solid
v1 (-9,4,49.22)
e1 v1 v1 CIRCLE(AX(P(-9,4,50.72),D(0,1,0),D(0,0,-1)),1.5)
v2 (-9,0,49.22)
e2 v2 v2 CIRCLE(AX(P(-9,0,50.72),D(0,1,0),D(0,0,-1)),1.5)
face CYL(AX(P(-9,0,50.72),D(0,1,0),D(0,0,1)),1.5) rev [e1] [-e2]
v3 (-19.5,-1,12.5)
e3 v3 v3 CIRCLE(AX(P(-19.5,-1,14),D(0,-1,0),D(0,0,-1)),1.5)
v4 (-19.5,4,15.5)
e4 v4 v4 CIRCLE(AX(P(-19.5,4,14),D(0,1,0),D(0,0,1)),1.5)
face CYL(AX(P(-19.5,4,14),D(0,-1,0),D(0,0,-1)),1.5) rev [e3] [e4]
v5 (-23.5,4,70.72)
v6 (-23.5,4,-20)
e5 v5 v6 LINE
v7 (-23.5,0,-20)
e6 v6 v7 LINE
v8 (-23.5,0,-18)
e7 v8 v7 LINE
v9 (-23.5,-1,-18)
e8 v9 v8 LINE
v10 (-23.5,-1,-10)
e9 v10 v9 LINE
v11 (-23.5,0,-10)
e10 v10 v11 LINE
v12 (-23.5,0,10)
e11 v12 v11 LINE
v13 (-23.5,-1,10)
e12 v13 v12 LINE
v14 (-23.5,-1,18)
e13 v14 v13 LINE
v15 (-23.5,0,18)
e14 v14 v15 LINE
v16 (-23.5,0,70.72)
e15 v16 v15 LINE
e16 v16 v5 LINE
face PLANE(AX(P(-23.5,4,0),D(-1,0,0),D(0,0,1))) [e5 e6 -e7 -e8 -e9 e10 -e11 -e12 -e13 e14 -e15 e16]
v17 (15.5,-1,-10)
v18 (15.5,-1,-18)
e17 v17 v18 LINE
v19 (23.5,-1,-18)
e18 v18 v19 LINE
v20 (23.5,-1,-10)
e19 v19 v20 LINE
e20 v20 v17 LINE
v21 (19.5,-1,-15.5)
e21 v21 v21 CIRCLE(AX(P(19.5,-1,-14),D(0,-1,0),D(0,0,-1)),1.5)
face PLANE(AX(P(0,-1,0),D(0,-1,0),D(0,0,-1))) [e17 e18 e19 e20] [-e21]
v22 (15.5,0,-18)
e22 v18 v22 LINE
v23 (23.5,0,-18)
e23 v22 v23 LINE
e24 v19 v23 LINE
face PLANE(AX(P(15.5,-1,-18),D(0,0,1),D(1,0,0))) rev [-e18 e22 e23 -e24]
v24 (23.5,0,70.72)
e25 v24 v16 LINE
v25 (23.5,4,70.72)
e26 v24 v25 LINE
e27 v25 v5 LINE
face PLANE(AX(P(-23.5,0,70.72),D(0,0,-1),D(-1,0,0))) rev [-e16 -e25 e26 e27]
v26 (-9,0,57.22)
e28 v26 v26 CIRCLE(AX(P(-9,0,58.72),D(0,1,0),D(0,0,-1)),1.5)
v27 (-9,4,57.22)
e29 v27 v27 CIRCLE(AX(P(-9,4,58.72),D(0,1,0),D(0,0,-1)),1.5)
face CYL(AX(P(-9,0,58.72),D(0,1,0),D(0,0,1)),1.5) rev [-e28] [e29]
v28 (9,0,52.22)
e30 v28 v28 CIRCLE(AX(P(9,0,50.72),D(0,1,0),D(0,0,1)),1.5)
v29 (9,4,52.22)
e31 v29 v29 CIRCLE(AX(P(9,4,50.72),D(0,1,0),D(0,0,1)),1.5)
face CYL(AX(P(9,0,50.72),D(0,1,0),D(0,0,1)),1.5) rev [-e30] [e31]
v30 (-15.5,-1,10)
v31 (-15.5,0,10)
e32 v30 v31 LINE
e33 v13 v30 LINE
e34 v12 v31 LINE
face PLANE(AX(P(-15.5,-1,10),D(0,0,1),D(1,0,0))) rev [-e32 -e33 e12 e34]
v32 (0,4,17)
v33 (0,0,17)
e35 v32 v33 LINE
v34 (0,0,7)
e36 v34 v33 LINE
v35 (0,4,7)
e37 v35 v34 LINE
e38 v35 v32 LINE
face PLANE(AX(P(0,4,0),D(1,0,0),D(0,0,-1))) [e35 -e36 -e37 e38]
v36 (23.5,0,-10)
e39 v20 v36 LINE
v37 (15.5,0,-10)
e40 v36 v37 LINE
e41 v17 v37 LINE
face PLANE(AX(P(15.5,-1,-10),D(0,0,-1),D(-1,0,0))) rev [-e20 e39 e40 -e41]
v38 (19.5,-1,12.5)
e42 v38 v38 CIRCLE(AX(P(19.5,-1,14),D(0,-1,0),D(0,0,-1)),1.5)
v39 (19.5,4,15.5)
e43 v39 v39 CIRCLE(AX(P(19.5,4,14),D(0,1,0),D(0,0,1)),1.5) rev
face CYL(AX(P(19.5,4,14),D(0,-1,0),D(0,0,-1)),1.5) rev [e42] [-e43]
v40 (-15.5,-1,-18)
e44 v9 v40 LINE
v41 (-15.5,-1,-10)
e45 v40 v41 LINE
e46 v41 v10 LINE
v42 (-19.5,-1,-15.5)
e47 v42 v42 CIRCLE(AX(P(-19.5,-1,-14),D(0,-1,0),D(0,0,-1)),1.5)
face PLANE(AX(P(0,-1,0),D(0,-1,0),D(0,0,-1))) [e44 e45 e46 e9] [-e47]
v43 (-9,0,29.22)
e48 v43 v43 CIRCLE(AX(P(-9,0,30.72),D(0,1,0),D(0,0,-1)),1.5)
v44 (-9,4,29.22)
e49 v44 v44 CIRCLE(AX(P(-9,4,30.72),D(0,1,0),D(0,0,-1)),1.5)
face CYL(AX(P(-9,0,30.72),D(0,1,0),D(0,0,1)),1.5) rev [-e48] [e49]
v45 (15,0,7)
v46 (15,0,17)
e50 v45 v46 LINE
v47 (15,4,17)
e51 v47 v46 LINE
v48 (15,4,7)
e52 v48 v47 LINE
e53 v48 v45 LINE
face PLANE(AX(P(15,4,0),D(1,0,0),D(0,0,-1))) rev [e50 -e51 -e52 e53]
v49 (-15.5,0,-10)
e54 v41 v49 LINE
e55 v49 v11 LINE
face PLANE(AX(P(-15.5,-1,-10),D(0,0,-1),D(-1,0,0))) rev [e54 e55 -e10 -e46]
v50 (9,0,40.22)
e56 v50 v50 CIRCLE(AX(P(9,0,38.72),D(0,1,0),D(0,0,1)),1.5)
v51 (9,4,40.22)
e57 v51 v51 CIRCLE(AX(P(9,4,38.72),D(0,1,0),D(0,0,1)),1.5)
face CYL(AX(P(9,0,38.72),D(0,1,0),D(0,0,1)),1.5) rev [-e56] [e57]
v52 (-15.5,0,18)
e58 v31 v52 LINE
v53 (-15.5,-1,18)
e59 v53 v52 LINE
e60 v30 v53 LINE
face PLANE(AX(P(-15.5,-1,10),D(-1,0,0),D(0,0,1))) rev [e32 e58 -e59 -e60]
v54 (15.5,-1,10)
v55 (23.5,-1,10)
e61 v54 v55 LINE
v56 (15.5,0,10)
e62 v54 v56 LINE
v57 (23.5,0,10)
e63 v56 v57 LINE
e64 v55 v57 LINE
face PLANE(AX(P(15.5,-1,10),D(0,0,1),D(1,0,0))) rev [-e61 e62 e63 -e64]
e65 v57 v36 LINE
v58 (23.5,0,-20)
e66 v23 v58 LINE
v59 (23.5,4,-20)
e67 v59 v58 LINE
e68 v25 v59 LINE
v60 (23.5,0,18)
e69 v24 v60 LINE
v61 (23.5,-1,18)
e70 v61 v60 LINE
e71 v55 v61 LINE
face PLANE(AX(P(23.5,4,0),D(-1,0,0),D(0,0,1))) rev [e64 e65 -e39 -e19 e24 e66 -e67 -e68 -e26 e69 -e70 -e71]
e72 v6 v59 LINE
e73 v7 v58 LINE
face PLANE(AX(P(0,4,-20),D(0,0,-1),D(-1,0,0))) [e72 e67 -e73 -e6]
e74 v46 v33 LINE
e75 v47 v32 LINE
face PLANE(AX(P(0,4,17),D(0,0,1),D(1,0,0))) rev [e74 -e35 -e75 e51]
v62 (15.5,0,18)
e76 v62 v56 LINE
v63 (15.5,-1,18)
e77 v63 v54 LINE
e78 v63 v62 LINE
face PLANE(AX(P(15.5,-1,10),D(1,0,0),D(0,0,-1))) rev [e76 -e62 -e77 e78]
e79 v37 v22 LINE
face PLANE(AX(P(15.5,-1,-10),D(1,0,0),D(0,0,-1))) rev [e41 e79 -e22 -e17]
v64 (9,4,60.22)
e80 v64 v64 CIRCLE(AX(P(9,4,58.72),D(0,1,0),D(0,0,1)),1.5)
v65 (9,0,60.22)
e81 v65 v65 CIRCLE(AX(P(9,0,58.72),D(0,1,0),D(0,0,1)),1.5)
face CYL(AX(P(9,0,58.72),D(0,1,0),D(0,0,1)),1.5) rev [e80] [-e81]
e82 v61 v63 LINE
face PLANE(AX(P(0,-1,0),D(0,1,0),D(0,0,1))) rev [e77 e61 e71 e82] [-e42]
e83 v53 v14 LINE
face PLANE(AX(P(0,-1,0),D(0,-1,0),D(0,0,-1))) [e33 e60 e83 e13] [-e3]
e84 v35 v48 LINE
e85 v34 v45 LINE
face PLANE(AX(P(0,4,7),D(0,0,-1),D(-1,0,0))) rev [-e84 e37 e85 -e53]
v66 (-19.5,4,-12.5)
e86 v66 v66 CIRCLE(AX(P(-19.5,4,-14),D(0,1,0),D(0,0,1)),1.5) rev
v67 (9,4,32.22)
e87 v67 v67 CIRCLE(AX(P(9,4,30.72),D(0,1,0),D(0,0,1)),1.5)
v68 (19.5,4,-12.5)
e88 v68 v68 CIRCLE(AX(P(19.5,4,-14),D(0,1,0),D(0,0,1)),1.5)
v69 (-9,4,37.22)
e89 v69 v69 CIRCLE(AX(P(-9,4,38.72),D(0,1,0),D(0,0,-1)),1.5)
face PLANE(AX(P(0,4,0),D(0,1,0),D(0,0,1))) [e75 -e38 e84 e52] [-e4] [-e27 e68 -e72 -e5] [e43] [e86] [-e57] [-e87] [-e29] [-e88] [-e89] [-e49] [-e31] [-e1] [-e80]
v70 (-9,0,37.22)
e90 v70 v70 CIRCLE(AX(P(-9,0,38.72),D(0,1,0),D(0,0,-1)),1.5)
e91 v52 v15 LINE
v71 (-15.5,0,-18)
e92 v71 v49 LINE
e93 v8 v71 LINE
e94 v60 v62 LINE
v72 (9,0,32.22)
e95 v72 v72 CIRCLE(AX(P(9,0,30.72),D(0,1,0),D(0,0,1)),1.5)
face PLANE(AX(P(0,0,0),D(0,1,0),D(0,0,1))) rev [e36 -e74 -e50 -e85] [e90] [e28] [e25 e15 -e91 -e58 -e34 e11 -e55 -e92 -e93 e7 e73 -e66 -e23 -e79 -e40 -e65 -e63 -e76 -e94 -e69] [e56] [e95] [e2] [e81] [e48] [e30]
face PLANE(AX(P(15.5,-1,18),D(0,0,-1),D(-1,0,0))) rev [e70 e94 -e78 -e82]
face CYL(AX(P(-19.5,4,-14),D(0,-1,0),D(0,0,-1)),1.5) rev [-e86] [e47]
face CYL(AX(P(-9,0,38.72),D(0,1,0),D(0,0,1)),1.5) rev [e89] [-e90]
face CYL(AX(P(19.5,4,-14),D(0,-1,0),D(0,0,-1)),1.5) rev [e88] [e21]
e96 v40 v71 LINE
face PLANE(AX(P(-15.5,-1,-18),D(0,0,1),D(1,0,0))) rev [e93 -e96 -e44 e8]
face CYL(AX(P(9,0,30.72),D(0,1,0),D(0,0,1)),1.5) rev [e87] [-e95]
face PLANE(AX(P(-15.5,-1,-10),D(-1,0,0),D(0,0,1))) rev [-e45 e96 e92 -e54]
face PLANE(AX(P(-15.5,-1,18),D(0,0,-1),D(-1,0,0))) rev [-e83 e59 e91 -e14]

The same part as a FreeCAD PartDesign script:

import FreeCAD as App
import Part
import Sketcher
from FreeCAD import Vector
Q = App.Units.Quantity


def add_polygon(sketch, points):
    """Adds a closed chain of lines whose ends are joined by coincident constraints."""
    first, n = sketch.GeometryCount, len(points)
    for a, b in zip(points, points[1:] + points[:1]):
        sketch.addGeometry(Part.LineSegment(App.Vector(*a, 0), App.Vector(*b, 0)), False)
    for i in range(n):
        sketch.addConstraint(Sketcher.Constraint("Coincident", first + i, 2, first + (i + 1) % n, 1))

doc = App.newDocument("Part")
body = doc.addObject("PartDesign::Body", "Body")

sketch1 = body.newObject("Sketcher::SketchObject", "Sketch")
sketch1.AttachmentSupport = (doc.getObject("XZ_Plane"), [""])
sketch1.MapMode = "FlatFace"
add_polygon(sketch1, [(-23.5, -20), (-23.5, 75.7), (23.5, 75.7), (23.5, -20)])
sketch1.addGeometry(Part.Circle(Vector(-19.5, 14, 0), Vector(0, 0, 1), 1.5), False)
add_polygon(sketch1, [(15, 17), (0, 17), (0, 7), (15, 7)])
sketch1.addGeometry(Part.Circle(Vector(19.5, 14, 0), Vector(0, 0, 1), 1.5), False)
sketch1.addGeometry(Part.Circle(Vector(-19.5, -14, 0), Vector(0, 0, 1), 1.5), False)
sketch1.addGeometry(Part.Circle(Vector(19.5, -14, 0), Vector(0, 0, 1), 1.5), False)
sketch1.addConstraint(Sketcher.Constraint("Vertical", 0))
sketch1.addConstraint(Sketcher.Constraint("Horizontal", 1))
sketch1.addConstraint(Sketcher.Constraint("Vertical", 2))
sketch1.addConstraint(Sketcher.Constraint("Horizontal", 3))
sketch1.addConstraint(Sketcher.Constraint("Horizontal", 5))
sketch1.addConstraint(Sketcher.Constraint("Vertical", 6))
sketch1.addConstraint(Sketcher.Constraint("Horizontal", 7))
sketch1.addConstraint(Sketcher.Constraint("Vertical", 8))
sketch1.addConstraint(Sketcher.Constraint("Equal", 4, 9))
sketch1.addConstraint(Sketcher.Constraint("Equal", 9, 10))
sketch1.addConstraint(Sketcher.Constraint("Equal", 10, 11))
sketch1.addConstraint(Sketcher.Constraint("Symmetric", 9, 3, 10, 3, -1, 1))
sketch1.addConstraint(Sketcher.Constraint("Symmetric", 4, 3, 11, 3, -1, 1))
sketch1.addConstraint(Sketcher.Constraint("Symmetric", 4, 3, 9, 3, -2))
sketch1.addConstraint(Sketcher.Constraint("PointOnObject", 5, 2, -2))
sketch1.addConstraint(Sketcher.Constraint("Diameter", 4, Q("3 mm")))
sketch1.addConstraint(Sketcher.Constraint("DistanceX", 1, 1, 1, 2, Q("47 mm")))
sketch1.addConstraint(Sketcher.Constraint("DistanceX", 5, 2, 5, 1, Q("15 mm")))
sketch1.addConstraint(Sketcher.Constraint("DistanceY", 6, 2, 6, 1, Q("10 mm")))
sketch1.addConstraint(Sketcher.Constraint("DistanceY", -1, 1, 4, 3, Q("14 mm")))
sketch1.addConstraint(Sketcher.Constraint("DistanceY", 2, 2, -1, 1, Q("20 mm")))
sketch1.addConstraint(Sketcher.Constraint("DistanceY", -1, 1, 5, 2, Q("17 mm")))
sketch1.addConstraint(Sketcher.Constraint("DistanceX", 4, 3, 9, 3, Q("39 mm")))
sketch1.addConstraint(Sketcher.Constraint("DistanceX", 0, 2, 4, 3, Q("4 mm")))
sketch1.addConstraint(Sketcher.Constraint("DistanceY", 0, 1, 0, 2, Q("95.72 mm")))
pad1 = body.newObject("PartDesign::Pad", "Pad")
pad1.Profile = sketch1
pad1.Length = 4
pad1.Reversed = True

sketch2 = body.newObject("Sketcher::SketchObject", "Sketch001")
sketch2.AttachmentSupport = (doc.getObject("XZ_Plane"), [""])
sketch2.MapMode = "FlatFace"
sketch2.AttachmentOffset = App.Placement(Vector(0, 0, 1), App.Rotation())
add_polygon(sketch2, [(15.5, -10), (15.5, -18), (23.5, -18), (23.5, -10)])
sketch2.addGeometry(Part.Circle(Vector(19.5, -14, 0), Vector(0, 0, 1), 1.5), False)
add_polygon(sketch2, [(15.5, 18), (15.5, 10), (23.5, 10), (23.5, 18)])
sketch2.addGeometry(Part.Circle(Vector(19.5, 14, 0), Vector(0, 0, 1), 1.5), False)
add_polygon(sketch2, [(-23.5, -10), (-23.5, -18), (-15.5, -18), (-15.5, -10)])
sketch2.addGeometry(Part.Circle(Vector(-19.5, -14, 0), Vector(0, 0, 1), 1.5), False)
add_polygon(sketch2, [(-23.5, 18), (-23.5, 10), (-15.5, 10), (-15.5, 18)])
sketch2.addGeometry(Part.Circle(Vector(-19.5, 14, 0), Vector(0, 0, 1), 1.5), False)
sketch2.addConstraint(Sketcher.Constraint("Vertical", 0))
sketch2.addConstraint(Sketcher.Constraint("Horizontal", 1))
sketch2.addConstraint(Sketcher.Constraint("Vertical", 2))
sketch2.addConstraint(Sketcher.Constraint("Horizontal", 3))
sketch2.addConstraint(Sketcher.Constraint("Vertical", 5))
sketch2.addConstraint(Sketcher.Constraint("Horizontal", 6))
sketch2.addConstraint(Sketcher.Constraint("Vertical", 7))
sketch2.addConstraint(Sketcher.Constraint("Horizontal", 8))
sketch2.addConstraint(Sketcher.Constraint("Vertical", 10))
sketch2.addConstraint(Sketcher.Constraint("Horizontal", 11))
sketch2.addConstraint(Sketcher.Constraint("Vertical", 12))
sketch2.addConstraint(Sketcher.Constraint("Horizontal", 13))
sketch2.addConstraint(Sketcher.Constraint("Vertical", 15))
sketch2.addConstraint(Sketcher.Constraint("Horizontal", 16))
sketch2.addConstraint(Sketcher.Constraint("Vertical", 17))
sketch2.addConstraint(Sketcher.Constraint("Horizontal", 18))
sketch2.addConstraint(Sketcher.Constraint("Equal", 4, 9))
sketch2.addConstraint(Sketcher.Constraint("Equal", 9, 14))
sketch2.addConstraint(Sketcher.Constraint("Equal", 14, 19))
sketch2.addConstraint(Sketcher.Constraint("Symmetric", 9, 3, 14, 3, -1, 1))
sketch2.addConstraint(Sketcher.Constraint("Symmetric", 4, 3, 19, 3, -1, 1))
sketch2.addConstraint(Sketcher.Constraint("Symmetric", 7, 2, 10, 2, -1, 1))
sketch2.addConstraint(Sketcher.Constraint("Symmetric", 5, 2, 12, 2, -1, 1))
sketch2.addConstraint(Sketcher.Constraint("Symmetric", 2, 2, 15, 2, -1, 1))
sketch2.addConstraint(Sketcher.Constraint("Symmetric", 0, 2, 17, 2, -1, 1))
sketch2.addConstraint(Sketcher.Constraint("Symmetric", 4, 3, 14, 3, -2))
sketch2.addConstraint(Sketcher.Constraint("Symmetric", 1, 2, 10, 2, -2))
sketch2.addConstraint(Sketcher.Constraint("Symmetric", 3, 2, 12, 2, -2))
sketch2.addConstraint(Sketcher.Constraint("Equal", 18, 0))
sketch2.addConstraint(Sketcher.Constraint("Diameter", 4, Q("3 mm")))
sketch2.addConstraint(Sketcher.Constraint("DistanceX", 1, 1, 1, 2, Q("8 mm")))
sketch2.addConstraint(Sketcher.Constraint("DistanceY", 4, 3, -1, 1, Q("14 mm")))
sketch2.addConstraint(Sketcher.Constraint("DistanceY", 0, 2, -1, 1, Q("18 mm")))
sketch2.addConstraint(Sketcher.Constraint("DistanceX", 14, 3, 4, 3, Q("39 mm")))
sketch2.addConstraint(Sketcher.Constraint("DistanceX", 0, 2, 4, 3, Q("4 mm")))
pad2 = body.newObject("PartDesign::Pad", "Pad001")
pad2.Profile = sketch2
pad2.Length = 1
pad2.Reversed = True

sketch3 = body.newObject("Sketcher::SketchObject", "Sketch002")
sketch3.AttachmentSupport = (doc.getObject("XZ_Plane"), [""])
sketch3.MapMode = "FlatFace"
sketch3.AttachmentOffset = App.Placement(Vector(0, 0, -4), App.Rotation())
sketch3.addGeometry(Part.Circle(Vector(9, 30.7, 0), Vector(0, 0, 1), 1.5), False)
sketch3.addGeometry(Part.Circle(Vector(9, 50.7, 0), Vector(0, 0, 1), 1.5), False)
sketch3.addGeometry(Part.Circle(Vector(-9, 50.7, 0), Vector(0, 0, 1), 1.5), False)
sketch3.addGeometry(Part.Circle(Vector(-9, 30.7, 0), Vector(0, 0, 1), 1.5), False)
sketch3.addGeometry(Part.Circle(Vector(-9, 38.7, 0), Vector(0, 0, 1), 1.5), False)
sketch3.addGeometry(Part.Circle(Vector(9, 38.7, 0), Vector(0, 0, 1), 1.5), False)
sketch3.addGeometry(Part.Circle(Vector(9, 58.7, 0), Vector(0, 0, 1), 1.5), False)
sketch3.addGeometry(Part.Circle(Vector(-9, 58.7, 0), Vector(0, 0, 1), 1.5), False)
add_polygon(sketch3, [(-23.5, 70.7), (-23.5, 75.7), (23.5, 75.7), (23.5, 70.7)])
sketch3.addConstraint(Sketcher.Constraint("Vertical", 8))
sketch3.addConstraint(Sketcher.Constraint("Horizontal", 9))
sketch3.addConstraint(Sketcher.Constraint("Vertical", 10))
sketch3.addConstraint(Sketcher.Constraint("Horizontal", 11))
sketch3.addConstraint(Sketcher.Constraint("Equal", 0, 1))
sketch3.addConstraint(Sketcher.Constraint("Equal", 1, 2))
sketch3.addConstraint(Sketcher.Constraint("Equal", 2, 3))
sketch3.addConstraint(Sketcher.Constraint("Equal", 3, 4))
sketch3.addConstraint(Sketcher.Constraint("Equal", 4, 5))
sketch3.addConstraint(Sketcher.Constraint("Equal", 5, 6))
sketch3.addConstraint(Sketcher.Constraint("Equal", 6, 7))
sketch3.addConstraint(Sketcher.Constraint("Symmetric", 1, 3, 2, 3, -2))
sketch3.addConstraint(Sketcher.Constraint("Symmetric", 0, 3, 3, 3, -2))
sketch3.addConstraint(Sketcher.Constraint("Symmetric", 4, 3, 5, 3, -2))
sketch3.addConstraint(Sketcher.Constraint("Symmetric", 6, 3, 7, 3, -2))
sketch3.addConstraint(Sketcher.Constraint("Vertical", 0, 3, 1, 3))
sketch3.addConstraint(Sketcher.Constraint("Vertical", 3, 3, 4, 3))
sketch3.addConstraint(Sketcher.Constraint("Vertical", 5, 3, 6, 3))
sketch3.addConstraint(Sketcher.Constraint("Diameter", 0, Q("3 mm")))
sketch3.addConstraint(Sketcher.Constraint("DistanceX", 9, 1, 9, 2, Q("47 mm")))
sketch3.addConstraint(Sketcher.Constraint("DistanceY", 8, 1, 8, 2, Q("5 mm")))
sketch3.addConstraint(Sketcher.Constraint("DistanceX", -1, 1, 0, 3, Q("9 mm")))
sketch3.addConstraint(Sketcher.Constraint("DistanceY", 0, 3, 1, 3, Q("20 mm")))
sketch3.addConstraint(Sketcher.Constraint("DistanceY", 3, 3, 4, 3, Q("8 mm")))
sketch3.addConstraint(Sketcher.Constraint("DistanceY", 1, 3, 6, 3, Q("8 mm")))
sketch3.addConstraint(Sketcher.Constraint("DistanceY", 7, 3, 8, 2, Q("17 mm")))
sketch3.addConstraint(Sketcher.Constraint("DistanceX", 8, 2, -1, 1, Q("23.5 mm")))
sketch3.addConstraint(Sketcher.Constraint("DistanceY", -1, 1, 0, 3, Q("30.72 mm")))
pocket1 = body.newObject("PartDesign::Pocket", "Pocket")
pocket1.Profile = sketch3
pocket1.Length = 4
pocket1.Reversed = True

doc.recompute()
